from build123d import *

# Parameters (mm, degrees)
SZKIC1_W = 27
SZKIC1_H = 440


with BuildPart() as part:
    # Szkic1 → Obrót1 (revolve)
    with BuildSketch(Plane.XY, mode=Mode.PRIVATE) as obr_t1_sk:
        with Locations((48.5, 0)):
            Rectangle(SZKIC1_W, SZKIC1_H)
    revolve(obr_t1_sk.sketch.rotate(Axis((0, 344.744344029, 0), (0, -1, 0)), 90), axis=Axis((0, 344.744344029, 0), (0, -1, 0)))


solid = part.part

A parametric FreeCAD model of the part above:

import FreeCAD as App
import Part
import Sketcher
from FreeCAD import Vector
Q = App.Units.Quantity

doc = App.newDocument("Part")
body = doc.addObject("PartDesign::Body", "Body")

# Sketch on XY plane
sketch1 = doc.addObject("Sketcher::SketchObject", "Sketch")
body.addObject(sketch1)
sketch1.AttachmentSupport = (doc.XY_Plane, [""])
sketch1.MapMode = "FlatFace"
sketch1.addGeometry([
    Part.LineSegment(Vector(35, 220, 0), Vector(35, -220, 0)),
    Part.LineSegment(Vector(35, -220, 0), Vector(62, -220, 0)),
    Part.LineSegment(Vector(62, -220, 0), Vector(62, 220, 0)),
    Part.LineSegment(Vector(62, 220, 0), Vector(35, 220, 0)),
], False)
sketch1.addConstraint([
    Sketcher.Constraint("Coincident", 0, 2, 1, 1),
    Sketcher.Constraint("Coincident", 1, 2, 2, 1),
    Sketcher.Constraint("Coincident", 2, 2, 3, 1),
    Sketcher.Constraint("Coincident", 3, 2, 0, 1),
    Sketcher.Constraint("Vertical", 0),
    Sketcher.Constraint("Horizontal", 1),
    Sketcher.Constraint("Vertical", 2),
    Sketcher.Constraint("Horizontal", 3),
    Sketcher.Constraint("DistanceX", 1, 1, 1, 2, Q("27 mm")),
    Sketcher.Constraint("DistanceY", 0, 2, 0, 1, Q("440 mm")),
    Sketcher.Constraint("DistanceX", -1, 1, 0, 2, Q("35 mm")),
    Sketcher.Constraint("DistanceY", 0, 2, -1, 1, Q("220 mm")),
])
revolution = doc.addObject("PartDesign::Revolution", "Revolution")
body.addObject(revolution)
revolution.Profile = sketch1
revolution.ReferenceAxis = (sketch1, ["V_Axis"])
revolution.Angle = 360

doc.recompute()
